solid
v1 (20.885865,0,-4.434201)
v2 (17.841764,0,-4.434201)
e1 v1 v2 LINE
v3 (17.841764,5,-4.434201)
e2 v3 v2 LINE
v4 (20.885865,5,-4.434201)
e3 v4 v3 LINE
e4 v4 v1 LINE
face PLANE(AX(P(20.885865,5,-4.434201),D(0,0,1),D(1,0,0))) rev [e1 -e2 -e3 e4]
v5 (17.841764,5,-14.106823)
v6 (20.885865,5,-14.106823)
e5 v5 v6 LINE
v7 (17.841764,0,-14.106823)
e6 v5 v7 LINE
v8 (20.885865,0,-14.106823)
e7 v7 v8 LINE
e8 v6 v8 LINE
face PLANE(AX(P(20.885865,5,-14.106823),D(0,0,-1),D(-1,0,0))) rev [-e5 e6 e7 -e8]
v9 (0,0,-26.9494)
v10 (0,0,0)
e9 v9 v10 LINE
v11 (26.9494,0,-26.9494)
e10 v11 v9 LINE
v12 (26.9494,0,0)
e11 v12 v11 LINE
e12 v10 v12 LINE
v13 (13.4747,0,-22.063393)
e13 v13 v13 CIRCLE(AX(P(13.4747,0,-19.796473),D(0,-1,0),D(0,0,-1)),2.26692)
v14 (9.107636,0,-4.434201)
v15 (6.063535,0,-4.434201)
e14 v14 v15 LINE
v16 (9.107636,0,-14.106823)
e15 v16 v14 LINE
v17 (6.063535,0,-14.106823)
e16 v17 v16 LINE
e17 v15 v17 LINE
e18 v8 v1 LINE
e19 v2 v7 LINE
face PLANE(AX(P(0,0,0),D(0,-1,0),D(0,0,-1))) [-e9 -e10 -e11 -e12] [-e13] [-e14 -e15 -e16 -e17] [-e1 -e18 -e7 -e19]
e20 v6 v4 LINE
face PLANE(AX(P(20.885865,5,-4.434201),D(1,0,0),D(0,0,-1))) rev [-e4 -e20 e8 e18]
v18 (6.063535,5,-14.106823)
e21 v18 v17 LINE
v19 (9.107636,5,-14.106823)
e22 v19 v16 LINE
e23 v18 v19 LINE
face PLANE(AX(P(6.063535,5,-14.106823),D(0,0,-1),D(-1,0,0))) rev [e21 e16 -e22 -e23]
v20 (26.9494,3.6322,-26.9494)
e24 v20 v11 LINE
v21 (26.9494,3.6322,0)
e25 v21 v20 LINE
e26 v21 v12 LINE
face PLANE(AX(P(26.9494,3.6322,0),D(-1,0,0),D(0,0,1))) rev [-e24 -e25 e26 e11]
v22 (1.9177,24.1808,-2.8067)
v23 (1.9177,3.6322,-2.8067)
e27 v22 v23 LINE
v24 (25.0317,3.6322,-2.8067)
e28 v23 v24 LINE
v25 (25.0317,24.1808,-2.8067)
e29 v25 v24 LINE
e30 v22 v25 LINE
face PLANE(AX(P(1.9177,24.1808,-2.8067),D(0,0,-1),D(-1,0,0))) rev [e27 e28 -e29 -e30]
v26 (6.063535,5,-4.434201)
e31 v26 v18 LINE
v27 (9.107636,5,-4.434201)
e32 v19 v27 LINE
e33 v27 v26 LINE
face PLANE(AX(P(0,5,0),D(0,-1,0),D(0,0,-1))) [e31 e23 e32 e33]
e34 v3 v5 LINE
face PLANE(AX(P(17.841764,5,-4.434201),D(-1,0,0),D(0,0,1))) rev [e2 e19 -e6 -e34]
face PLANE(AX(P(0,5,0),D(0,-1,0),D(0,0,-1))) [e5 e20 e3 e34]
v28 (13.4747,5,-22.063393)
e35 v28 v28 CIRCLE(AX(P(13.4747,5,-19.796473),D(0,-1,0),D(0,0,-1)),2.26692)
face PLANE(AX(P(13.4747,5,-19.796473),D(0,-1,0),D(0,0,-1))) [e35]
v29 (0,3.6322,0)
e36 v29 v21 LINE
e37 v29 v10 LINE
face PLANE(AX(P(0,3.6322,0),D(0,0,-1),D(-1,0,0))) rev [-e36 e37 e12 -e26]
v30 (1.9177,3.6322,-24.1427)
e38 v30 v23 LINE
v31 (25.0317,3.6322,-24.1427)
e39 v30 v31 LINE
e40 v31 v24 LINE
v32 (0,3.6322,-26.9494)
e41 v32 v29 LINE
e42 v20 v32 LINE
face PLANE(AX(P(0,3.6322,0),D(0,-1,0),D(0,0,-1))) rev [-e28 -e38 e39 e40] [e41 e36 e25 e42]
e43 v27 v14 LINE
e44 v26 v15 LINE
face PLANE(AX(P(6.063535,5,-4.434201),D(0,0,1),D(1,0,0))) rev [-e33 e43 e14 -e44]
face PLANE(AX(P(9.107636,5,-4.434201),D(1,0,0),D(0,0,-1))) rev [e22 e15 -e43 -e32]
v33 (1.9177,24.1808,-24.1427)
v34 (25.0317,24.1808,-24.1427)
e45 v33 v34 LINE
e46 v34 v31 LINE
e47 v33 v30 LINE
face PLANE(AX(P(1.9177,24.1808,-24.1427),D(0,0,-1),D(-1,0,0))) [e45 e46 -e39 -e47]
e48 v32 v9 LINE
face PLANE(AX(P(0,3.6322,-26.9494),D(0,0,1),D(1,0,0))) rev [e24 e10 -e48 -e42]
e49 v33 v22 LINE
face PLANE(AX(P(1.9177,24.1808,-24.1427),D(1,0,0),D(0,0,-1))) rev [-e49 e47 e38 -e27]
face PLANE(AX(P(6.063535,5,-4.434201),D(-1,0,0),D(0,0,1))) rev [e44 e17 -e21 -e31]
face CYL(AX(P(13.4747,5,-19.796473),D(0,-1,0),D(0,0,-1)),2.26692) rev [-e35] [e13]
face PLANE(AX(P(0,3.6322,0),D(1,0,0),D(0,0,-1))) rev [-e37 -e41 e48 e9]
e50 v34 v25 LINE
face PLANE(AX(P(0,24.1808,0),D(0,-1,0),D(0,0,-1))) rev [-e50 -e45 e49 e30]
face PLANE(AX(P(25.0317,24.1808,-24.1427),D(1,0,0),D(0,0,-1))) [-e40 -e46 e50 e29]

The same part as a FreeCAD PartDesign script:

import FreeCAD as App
import Part
import Sketcher
Q = App.Units.Quantity


def add_polygon(sketch, points):
    """Adds a closed chain of lines whose ends are joined by coincident constraints."""
    first, n = sketch.GeometryCount, len(points)
    for a, b in zip(points, points[1:] + points[:1]):
        sketch.addGeometry(Part.LineSegment(App.Vector(*a, 0), App.Vector(*b, 0)), False)
    for i in range(n):
        sketch.addConstraint(Sketcher.Constraint("Coincident", first + i, 2, first + (i + 1) % n, 1))

doc = App.newDocument("Part")
body = doc.addObject("PartDesign::Body", "Body")

# Sketch on XZ plane
sketch1 = body.newObject("Sketcher::SketchObject", "Sketch")
sketch1.AttachmentSupport = (doc.getObject("XZ_Plane"), [""])
sketch1.MapMode = "FlatFace"
add_polygon(sketch1, [(0, -27), (0, 0), (27, 0), (27, -27)])  # lines 0-3
sketch1.addConstraint([
    Sketcher.Constraint("Vertical", 0),
    Sketcher.Constraint("Horizontal", 1),
    Sketcher.Constraint("Vertical", 2),
    Sketcher.Constraint("Horizontal", 3),
    Sketcher.Constraint("Coincident", 0, 2, -1, 1),
    Sketcher.Constraint("Equal", 3, 0),
    Sketcher.Constraint("DistanceX", 1, 1, 1, 2, Q("1.061 in")),
])
pad1 = body.newObject("PartDesign::Pad", "Pad")
pad1.Profile = sketch1
pad1.Length = Q("0.143 in")
pad1.Reversed = True

# Sketch on XZ plane
sketch2 = body.newObject("Sketcher::SketchObject", "Sketch001")
sketch2.AttachmentSupport = (doc.getObject("XZ_Plane"), [""])
sketch2.MapMode = "FlatFace"
sketch2.AttachmentOffset = App.Placement(App.Vector(0, 0, -0.143 * 25.4), App.Rotation())
add_polygon(sketch2, [(2, -24), (2, -3), (25, -3), (25, -24)])  # lines 0-3
sketch2.addConstraint([
    Sketcher.Constraint("Vertical", 0),
    Sketcher.Constraint("Horizontal", 1),
    Sketcher.Constraint("Vertical", 2),
    Sketcher.Constraint("Horizontal", 3),
    Sketcher.Constraint("DistanceX", 1, 1, 1, 2, Q("0.91 in")),
    Sketcher.Constraint("DistanceY", 0, 1, 0, 2, Q("0.84 in")),
    Sketcher.Constraint("DistanceX", -1, 1, 0, 2, Q("0.0755 in")),
    Sketcher.Constraint("DistanceY", 0, 2, -1, 1, Q("0.1105 in")),
])
pad2 = body.newObject("PartDesign::Pad", "Pad001")
pad2.Profile = sketch2
pad2.Length = Q("0.809 in")
pad2.Reversed = True

# Sketch on XZ plane
sketch3 = body.newObject("Sketcher::SketchObject", "Sketch002")
sketch3.AttachmentSupport = (doc.getObject("XZ_Plane"), [""])
sketch3.MapMode = "FlatFace"
sketch3.addGeometry(Part.Circle(App.Vector(13.5, -19.8, 0), App.Vector(0, 0, 1), 2.3), False)  # 0
add_polygon(sketch3, [(6.1, -4.4), (6.1, -14.1), (9.1, -14.1), (9.1, -4.4)])  # lines 1-4
add_polygon(sketch3, [(17.8, -4.4), (17.8, -14.1), (20.9, -14.1), (20.9, -4.4)])  # lines 5-8
sketch3.addConstraint([
    Sketcher.Constraint("Vertical", 1),
    Sketcher.Constraint("Horizontal", 2),
    Sketcher.Constraint("Vertical", 3),
    Sketcher.Constraint("Horizontal", 4),
    Sketcher.Constraint("Vertical", 5),
    Sketcher.Constraint("Horizontal", 6),
    Sketcher.Constraint("Vertical", 7),
    Sketcher.Constraint("Horizontal", 8),
    Sketcher.Constraint("Horizontal", 2, 2, 5, 2),
    Sketcher.Constraint("Horizontal", 4, 2, 7, 2),
    Sketcher.Constraint("Equal", 4, 6),
    Sketcher.Constraint("Diameter", 0, Q("4.533839 mm")),
    Sketcher.Constraint("DistanceX", 2, 1, 2, 2, Q("3.044101 mm")),
    Sketcher.Constraint("DistanceX", -1, 1, 0, 3, Q("0.5305 in")),
    Sketcher.Constraint("DistanceY", 1, 2, 1, 1, Q("9.672622 mm")),
    Sketcher.Constraint("DistanceY", 3, 2, -1, 1, Q("4.434201 mm")),
    Sketcher.Constraint("DistanceY", 0, 3, 1, 2, Q("5.68965 mm")),
    Sketcher.Constraint("DistanceX", 1, 2, 5, 2, Q("11.778229 mm")),
    Sketcher.Constraint("DistanceX", -1, 1, 1, 2, Q("6.063535 mm")),
])
pocket1 = body.newObject("PartDesign::Pocket", "Pocket")
pocket1.Profile = sketch3
pocket1.Length = 5

doc.recompute()
